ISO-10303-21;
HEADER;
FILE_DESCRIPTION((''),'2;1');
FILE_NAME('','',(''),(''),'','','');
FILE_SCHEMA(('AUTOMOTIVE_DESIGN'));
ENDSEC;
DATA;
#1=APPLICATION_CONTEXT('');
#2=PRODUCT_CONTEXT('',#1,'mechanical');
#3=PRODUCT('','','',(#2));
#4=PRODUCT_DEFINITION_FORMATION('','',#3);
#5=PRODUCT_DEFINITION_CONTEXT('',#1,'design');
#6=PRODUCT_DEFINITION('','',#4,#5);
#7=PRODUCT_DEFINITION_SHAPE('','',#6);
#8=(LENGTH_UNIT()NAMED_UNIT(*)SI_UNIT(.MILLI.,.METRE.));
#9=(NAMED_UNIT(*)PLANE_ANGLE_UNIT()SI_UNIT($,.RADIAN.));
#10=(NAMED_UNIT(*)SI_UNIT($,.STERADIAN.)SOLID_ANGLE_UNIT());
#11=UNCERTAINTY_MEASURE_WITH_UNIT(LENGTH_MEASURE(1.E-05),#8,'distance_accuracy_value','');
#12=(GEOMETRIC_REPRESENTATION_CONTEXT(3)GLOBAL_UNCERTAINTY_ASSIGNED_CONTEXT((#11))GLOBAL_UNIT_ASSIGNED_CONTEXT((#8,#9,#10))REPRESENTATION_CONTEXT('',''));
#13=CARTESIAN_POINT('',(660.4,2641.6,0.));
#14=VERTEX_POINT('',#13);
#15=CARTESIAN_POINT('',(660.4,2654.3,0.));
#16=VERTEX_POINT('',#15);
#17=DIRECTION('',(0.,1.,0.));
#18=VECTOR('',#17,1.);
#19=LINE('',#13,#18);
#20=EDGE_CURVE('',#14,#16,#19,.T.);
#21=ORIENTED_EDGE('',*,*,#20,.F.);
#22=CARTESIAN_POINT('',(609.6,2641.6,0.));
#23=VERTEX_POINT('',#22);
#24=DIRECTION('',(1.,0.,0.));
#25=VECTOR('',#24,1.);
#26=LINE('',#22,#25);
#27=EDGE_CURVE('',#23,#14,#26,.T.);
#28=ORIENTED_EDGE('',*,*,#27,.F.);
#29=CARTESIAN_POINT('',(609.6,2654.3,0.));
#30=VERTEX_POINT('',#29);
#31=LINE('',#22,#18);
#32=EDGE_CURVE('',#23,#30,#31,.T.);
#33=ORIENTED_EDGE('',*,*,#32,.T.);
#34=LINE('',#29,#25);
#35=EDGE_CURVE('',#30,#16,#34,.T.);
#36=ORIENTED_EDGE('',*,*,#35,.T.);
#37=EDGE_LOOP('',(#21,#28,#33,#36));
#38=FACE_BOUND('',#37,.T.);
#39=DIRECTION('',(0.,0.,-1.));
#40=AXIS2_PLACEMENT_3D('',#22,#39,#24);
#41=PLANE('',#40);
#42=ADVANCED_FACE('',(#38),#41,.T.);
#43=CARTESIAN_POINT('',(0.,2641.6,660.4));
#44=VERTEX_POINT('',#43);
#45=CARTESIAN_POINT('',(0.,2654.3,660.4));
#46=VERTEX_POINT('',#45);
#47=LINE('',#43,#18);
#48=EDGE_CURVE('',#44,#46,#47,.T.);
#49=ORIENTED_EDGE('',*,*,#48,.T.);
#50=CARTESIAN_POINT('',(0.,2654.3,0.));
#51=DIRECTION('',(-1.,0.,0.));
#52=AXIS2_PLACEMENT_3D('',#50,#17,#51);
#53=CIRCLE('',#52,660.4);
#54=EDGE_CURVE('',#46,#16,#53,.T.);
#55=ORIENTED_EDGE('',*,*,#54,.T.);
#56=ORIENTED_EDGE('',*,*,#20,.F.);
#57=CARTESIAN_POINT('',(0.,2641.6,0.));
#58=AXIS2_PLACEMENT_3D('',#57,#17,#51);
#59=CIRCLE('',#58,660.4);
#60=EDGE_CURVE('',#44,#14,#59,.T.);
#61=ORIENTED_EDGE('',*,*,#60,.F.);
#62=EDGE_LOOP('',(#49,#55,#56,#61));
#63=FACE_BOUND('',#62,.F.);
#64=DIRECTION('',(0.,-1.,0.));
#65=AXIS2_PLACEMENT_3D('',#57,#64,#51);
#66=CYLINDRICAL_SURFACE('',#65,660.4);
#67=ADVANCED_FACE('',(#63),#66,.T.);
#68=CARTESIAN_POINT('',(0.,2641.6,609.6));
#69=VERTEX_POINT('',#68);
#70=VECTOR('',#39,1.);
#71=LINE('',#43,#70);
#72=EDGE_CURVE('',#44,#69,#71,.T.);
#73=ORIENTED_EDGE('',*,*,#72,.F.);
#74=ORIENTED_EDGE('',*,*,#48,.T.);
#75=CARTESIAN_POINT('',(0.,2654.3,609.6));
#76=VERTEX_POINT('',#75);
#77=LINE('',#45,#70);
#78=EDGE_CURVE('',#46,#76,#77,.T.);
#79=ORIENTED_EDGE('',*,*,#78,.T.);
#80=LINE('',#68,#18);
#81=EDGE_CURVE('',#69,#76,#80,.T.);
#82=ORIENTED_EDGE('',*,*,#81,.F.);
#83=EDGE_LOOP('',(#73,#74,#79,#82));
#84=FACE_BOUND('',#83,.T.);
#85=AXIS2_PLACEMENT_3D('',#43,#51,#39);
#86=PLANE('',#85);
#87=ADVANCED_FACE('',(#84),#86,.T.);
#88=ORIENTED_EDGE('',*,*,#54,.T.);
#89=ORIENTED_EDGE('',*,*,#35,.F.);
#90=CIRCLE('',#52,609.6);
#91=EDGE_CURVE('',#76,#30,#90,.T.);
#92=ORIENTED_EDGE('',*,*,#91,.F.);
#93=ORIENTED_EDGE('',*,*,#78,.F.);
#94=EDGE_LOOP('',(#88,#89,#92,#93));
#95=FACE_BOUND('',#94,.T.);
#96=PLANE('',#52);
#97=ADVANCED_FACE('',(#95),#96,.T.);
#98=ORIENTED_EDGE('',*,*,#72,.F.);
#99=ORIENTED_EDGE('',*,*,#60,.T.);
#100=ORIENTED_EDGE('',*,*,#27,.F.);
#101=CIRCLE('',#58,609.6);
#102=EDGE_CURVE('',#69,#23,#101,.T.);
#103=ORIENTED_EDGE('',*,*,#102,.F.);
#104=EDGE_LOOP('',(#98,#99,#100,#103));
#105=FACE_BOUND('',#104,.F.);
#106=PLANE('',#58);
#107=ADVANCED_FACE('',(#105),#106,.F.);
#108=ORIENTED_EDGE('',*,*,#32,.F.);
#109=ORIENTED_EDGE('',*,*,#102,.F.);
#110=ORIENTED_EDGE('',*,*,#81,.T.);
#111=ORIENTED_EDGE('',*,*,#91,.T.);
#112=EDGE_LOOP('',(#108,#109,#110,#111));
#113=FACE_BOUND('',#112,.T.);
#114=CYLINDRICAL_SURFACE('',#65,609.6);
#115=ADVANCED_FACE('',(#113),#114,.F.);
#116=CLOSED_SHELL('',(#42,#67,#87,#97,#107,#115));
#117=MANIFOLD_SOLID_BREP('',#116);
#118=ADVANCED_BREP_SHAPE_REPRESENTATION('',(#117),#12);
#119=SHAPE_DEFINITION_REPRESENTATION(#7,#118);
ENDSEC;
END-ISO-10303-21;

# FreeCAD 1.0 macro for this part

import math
import FreeCAD as App
import Part
import Sketcher

V = App.Vector
Q = App.Units.Quantity

doc = App.newDocument("Part")
body = doc.addObject("PartDesign::Body", "Body")

sketch1 = doc.addObject("Sketcher::SketchObject", "Sketch")
body.addObject(sketch1)
sketch1.AttachmentSupport = (doc.XZ_Plane, [""])
sketch1.MapMode = "FlatFace"
sketch1.AttachmentOffset = App.Placement(V(0, 0, -104 * 25.4), App.Rotation())
sketch1.addGeometry([
    Part.ArcOfCircle(Part.Circle(V(0, 0, 0), V(0, 0, 1), 610), math.radians(0), math.radians(90)),
    Part.LineSegment(V(0, 610, 0), V(0, 660, 0)),
    Part.ArcOfCircle(Part.Circle(V(0, 0, 0), V(0, 0, 1), 660), math.radians(0), math.radians(90)),
    Part.LineSegment(V(660, 0, 0), V(610, 0, 0)),
], False)
sketch1.addConstraint([
    Sketcher.Constraint("Coincident", 0, 2, 1, 1),
    Sketcher.Constraint("Coincident", 1, 2, 2, 2),
    Sketcher.Constraint("Coincident", 2, 1, 3, 1),
    Sketcher.Constraint("Coincident", 3, 2, 0, 1),
    Sketcher.Constraint("Vertical", 1),
    Sketcher.Constraint("Horizontal", 3),
    Sketcher.Constraint("Coincident", 0, 3, -1, 1),
    Sketcher.Constraint("Coincident", 2, 3, -1, 1),
    Sketcher.Constraint("PointOnObject", 1, 2, -2),
    Sketcher.Constraint("PointOnObject", 3, 2, -1),
    Sketcher.Constraint("Radius", 0, Q("24 in")),
    Sketcher.Constraint("Radius", 2, Q("26 in")),
])
pad1 = doc.addObject("PartDesign::Pad", "Pad")
body.addObject(pad1)
pad1.Profile = sketch1
pad1.Length = Q("0.5 in")
pad1.Reversed = True

doc.recompute()
